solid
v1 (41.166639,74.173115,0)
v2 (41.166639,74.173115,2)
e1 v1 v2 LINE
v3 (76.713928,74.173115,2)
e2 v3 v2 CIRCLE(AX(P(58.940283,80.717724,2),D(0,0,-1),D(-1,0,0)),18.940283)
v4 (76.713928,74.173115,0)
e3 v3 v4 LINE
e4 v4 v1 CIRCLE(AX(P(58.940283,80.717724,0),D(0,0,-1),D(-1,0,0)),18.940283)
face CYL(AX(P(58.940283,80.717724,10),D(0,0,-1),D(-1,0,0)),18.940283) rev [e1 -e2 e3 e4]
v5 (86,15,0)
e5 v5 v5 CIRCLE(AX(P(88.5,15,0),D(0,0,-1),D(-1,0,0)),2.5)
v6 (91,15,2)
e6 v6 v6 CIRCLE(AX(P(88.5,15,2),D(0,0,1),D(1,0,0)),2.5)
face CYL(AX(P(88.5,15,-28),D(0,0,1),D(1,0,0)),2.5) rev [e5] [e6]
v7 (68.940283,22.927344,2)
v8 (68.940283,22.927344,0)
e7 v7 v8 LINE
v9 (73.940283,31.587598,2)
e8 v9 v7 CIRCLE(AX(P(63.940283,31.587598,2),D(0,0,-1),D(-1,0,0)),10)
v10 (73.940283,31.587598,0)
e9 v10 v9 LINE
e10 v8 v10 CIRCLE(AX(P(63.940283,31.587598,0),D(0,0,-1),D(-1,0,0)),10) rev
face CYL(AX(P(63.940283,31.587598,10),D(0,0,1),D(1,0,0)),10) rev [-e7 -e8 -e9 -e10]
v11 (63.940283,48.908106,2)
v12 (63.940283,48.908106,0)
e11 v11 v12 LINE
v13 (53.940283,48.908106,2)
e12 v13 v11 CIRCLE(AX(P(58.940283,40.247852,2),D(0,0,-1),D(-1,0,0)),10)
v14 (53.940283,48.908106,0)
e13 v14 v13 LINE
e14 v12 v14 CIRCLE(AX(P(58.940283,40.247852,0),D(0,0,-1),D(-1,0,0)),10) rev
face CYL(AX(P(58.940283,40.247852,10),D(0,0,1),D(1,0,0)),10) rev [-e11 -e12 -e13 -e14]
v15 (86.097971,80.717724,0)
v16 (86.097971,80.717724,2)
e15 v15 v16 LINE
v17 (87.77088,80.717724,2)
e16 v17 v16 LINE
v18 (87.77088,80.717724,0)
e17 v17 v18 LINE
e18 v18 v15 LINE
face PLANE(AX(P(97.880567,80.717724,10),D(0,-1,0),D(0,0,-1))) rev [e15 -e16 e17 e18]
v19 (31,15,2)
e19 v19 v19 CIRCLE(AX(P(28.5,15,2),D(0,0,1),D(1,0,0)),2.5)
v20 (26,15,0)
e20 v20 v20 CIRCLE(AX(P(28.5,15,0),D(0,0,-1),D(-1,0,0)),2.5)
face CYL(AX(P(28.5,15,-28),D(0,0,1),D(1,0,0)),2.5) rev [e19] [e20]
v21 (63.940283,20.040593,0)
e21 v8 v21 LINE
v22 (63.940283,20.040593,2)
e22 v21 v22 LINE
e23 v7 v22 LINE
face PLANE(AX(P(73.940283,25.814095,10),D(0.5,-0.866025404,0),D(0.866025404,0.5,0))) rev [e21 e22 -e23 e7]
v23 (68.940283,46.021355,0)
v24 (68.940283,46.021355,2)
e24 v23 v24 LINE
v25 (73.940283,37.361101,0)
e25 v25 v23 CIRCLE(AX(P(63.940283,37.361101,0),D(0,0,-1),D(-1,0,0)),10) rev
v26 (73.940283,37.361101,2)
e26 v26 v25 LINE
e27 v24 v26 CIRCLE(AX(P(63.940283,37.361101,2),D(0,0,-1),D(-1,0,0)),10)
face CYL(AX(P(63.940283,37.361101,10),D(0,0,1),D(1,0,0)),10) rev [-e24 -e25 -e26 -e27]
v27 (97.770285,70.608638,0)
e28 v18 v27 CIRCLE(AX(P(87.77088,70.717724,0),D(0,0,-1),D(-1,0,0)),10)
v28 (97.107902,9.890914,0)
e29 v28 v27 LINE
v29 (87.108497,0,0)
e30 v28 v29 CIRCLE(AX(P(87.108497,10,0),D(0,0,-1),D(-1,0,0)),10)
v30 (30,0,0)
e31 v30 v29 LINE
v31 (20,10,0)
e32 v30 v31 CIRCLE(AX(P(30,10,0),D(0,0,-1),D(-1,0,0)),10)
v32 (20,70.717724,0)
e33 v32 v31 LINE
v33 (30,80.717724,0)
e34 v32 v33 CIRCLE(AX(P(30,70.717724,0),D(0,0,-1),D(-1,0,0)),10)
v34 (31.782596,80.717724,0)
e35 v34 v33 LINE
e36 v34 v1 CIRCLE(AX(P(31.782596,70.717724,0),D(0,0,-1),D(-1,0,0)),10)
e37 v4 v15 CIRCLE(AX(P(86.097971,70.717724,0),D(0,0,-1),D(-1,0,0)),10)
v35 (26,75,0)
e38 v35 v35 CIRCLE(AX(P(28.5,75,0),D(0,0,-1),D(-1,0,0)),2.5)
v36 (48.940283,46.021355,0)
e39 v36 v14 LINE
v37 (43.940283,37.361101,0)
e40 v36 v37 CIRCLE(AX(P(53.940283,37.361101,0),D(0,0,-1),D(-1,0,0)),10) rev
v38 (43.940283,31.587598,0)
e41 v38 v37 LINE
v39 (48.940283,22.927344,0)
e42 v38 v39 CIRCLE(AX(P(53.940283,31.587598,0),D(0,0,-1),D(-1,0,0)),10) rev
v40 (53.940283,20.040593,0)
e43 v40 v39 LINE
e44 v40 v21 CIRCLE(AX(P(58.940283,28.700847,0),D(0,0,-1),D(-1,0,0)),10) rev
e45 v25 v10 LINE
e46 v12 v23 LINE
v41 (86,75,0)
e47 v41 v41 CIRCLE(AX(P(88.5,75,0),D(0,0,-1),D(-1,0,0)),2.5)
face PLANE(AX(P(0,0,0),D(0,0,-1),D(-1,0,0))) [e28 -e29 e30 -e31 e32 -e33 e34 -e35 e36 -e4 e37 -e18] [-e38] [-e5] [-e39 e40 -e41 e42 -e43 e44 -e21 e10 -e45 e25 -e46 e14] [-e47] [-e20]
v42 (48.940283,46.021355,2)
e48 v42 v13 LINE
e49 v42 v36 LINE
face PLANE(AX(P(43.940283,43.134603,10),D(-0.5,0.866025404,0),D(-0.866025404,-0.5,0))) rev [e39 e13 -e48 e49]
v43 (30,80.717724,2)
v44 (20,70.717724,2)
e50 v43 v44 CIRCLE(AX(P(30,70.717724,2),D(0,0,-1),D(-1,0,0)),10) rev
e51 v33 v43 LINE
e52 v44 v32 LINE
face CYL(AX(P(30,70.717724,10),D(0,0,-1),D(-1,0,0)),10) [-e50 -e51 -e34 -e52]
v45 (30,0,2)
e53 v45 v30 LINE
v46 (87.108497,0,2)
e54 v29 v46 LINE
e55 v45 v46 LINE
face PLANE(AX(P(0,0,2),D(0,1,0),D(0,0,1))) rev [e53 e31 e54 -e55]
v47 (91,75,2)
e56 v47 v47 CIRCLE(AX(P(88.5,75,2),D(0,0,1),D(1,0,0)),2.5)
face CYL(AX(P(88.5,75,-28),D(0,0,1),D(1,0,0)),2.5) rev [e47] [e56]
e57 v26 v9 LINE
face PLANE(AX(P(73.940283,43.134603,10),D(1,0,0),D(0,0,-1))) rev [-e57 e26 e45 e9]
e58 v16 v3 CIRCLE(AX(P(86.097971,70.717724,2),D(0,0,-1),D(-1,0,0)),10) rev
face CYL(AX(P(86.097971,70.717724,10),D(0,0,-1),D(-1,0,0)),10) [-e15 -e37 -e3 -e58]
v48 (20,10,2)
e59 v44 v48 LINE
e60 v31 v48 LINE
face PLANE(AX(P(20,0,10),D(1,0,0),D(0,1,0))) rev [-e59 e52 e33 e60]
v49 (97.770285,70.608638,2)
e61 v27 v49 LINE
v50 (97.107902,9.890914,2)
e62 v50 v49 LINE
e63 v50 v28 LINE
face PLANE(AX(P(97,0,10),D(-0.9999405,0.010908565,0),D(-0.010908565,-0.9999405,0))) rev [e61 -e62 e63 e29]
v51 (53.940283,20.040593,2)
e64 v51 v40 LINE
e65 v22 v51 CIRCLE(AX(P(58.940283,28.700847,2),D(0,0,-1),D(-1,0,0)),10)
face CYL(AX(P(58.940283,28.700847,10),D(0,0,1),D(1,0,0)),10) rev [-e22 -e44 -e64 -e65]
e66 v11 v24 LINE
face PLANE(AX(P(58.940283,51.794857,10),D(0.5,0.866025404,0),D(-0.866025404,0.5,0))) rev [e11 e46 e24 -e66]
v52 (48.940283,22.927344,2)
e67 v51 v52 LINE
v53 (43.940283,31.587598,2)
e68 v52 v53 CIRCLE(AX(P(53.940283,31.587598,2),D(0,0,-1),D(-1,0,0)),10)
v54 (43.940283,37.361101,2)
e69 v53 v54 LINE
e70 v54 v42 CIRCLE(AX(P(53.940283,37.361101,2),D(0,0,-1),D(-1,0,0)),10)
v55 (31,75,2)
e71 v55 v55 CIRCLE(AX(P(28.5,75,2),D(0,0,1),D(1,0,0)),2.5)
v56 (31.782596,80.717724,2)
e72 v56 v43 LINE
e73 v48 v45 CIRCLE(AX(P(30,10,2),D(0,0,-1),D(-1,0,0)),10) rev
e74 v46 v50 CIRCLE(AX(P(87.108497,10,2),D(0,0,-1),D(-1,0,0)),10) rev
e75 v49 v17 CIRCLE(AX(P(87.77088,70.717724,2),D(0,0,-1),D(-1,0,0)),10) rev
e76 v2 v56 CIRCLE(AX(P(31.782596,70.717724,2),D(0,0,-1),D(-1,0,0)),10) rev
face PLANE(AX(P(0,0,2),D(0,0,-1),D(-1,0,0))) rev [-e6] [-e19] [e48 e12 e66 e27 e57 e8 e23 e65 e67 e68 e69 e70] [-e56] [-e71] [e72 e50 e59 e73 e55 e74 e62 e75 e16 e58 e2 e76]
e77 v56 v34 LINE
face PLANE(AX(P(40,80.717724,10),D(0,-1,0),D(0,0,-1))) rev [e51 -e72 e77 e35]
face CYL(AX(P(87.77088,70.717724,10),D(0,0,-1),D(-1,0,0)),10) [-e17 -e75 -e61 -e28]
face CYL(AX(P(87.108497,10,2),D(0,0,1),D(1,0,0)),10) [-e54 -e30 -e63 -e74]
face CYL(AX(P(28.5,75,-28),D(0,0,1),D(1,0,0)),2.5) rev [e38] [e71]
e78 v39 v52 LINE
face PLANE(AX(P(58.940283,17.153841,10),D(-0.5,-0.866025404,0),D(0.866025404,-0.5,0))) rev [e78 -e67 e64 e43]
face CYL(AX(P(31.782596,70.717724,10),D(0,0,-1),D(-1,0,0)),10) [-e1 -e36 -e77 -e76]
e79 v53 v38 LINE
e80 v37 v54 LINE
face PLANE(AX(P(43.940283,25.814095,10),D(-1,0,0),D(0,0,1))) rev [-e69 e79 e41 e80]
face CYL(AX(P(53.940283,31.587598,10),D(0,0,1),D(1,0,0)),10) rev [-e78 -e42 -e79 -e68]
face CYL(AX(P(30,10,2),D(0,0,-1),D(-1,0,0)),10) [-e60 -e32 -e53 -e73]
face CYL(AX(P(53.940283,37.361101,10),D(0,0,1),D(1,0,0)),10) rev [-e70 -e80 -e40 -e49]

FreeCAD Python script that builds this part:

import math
import FreeCAD as App
import Part
import Sketcher
Q = App.Units.Quantity


def edges_at(feature, points):
    """Names of the edges that pass closest to the given points."""
    edges = feature.Shape.Edges
    near = lambda p: min(range(len(edges)), key=lambda i: edges[i].distToShape(Part.Vertex(*p))[0])
    return sorted({f"Edge{near(p) + 1}" for p in points})

doc = App.newDocument("Part")
body = doc.addObject("PartDesign::Body", "Body")

# Sketch on XY plane
sketch1 = doc.addObject("Sketcher::SketchObject", "Sketch")
body.addObject(sketch1)
sketch1.AttachmentSupport = (doc.XY_Plane, [""])
sketch1.MapMode = "FlatFace"
sketch1.addGeometry([
    Part.LineSegment(App.Vector(0, 200, 0), App.Vector(0, 0, 0)),
    Part.LineSegment(App.Vector(0, 0, 0), App.Vector(117, 0, 0)),
    Part.LineSegment(App.Vector(117, 0, 0), App.Vector(117, 200, 0)),
    Part.LineSegment(App.Vector(117, 200, 0), App.Vector(0, 200, 0)),
], False)
sketch1.addConstraint([
    Sketcher.Constraint("Coincident", 0, 2, 1, 1),
    Sketcher.Constraint("Coincident", 1, 2, 2, 1),
    Sketcher.Constraint("Coincident", 2, 2, 3, 1),
    Sketcher.Constraint("Coincident", 3, 2, 0, 1),
    Sketcher.Constraint("Vertical", 0),
    Sketcher.Constraint("Horizontal", 1),
    Sketcher.Constraint("Vertical", 2),
    Sketcher.Constraint("Horizontal", 3),
    Sketcher.Constraint("Coincident", 0, 2, -1, 1),
    Sketcher.Constraint("DistanceX", 1, 1, 1, 2, Q("117 mm")),
    Sketcher.Constraint("DistanceY", 0, 2, 0, 1, Q("200 mm")),
])
pad1 = doc.addObject("PartDesign::Pad", "Pad")
body.addObject(pad1)
pad1.Profile = sketch1
pad1.Length = 2

# Sketch on XY plane
sketch2 = doc.addObject("Sketcher::SketchObject", "Sketch001")
body.addObject(sketch2)
sketch2.AttachmentSupport = (doc.XY_Plane, [""])
sketch2.MapMode = "FlatFace"
sketch2.AttachmentOffset = App.Placement(App.Vector(0, 0, 2), App.Rotation())
sketch2.addGeometry([
    Part.LineSegment(App.Vector(0, 120, 0), App.Vector(40, 200, 0)),  # 0
    Part.LineSegment(App.Vector(40, 200, 0), App.Vector(0, 200, 0)),  # 1
    Part.LineSegment(App.Vector(0, 200, 0), App.Vector(0, 120, 0)),  # 2
    Part.LineSegment(App.Vector(77, 200, 0), App.Vector(117, 120, 0)),  # 3
    Part.LineSegment(App.Vector(117, 120, 0), App.Vector(117, 200, 0)),  # 4
    Part.LineSegment(App.Vector(117, 200, 0), App.Vector(77, 200, 0)),  # 5
], False)
sketch2.addConstraint([
    Sketcher.Constraint("Coincident", 0, 2, 1, 1),
    Sketcher.Constraint("Coincident", 1, 2, 2, 1),
    Sketcher.Constraint("Coincident", 2, 2, 0, 1),
    Sketcher.Constraint("Coincident", 3, 2, 4, 1),
    Sketcher.Constraint("Coincident", 4, 2, 5, 1),
    Sketcher.Constraint("Coincident", 5, 2, 3, 1),
    Sketcher.Constraint("Horizontal", 1),
    Sketcher.Constraint("Vertical", 2),
    Sketcher.Constraint("Vertical", 4),
    Sketcher.Constraint("Horizontal", 5),
    Sketcher.Constraint("PointOnObject", 1, 2, -2),
    Sketcher.Constraint("Horizontal", 2, 2, 3, 2),
    Sketcher.Constraint("Horizontal", 1, 2, 4, 2),
    Sketcher.Constraint("Equal", 1, 5),
    Sketcher.Constraint("DistanceX", 1, 2, 1, 1, Q("40 mm")),
    Sketcher.Constraint("DistanceY", 2, 2, 2, 1, Q("80 mm")),
    Sketcher.Constraint("DistanceY", -1, 1, 0, 2, Q("200 mm")),
    Sketcher.Constraint("DistanceX", -1, 1, 3, 2, Q("117 mm")),
])
pocket1 = doc.addObject("PartDesign::Pocket", "Pocket")
body.addObject(pocket1)
pocket1.Profile = sketch2
pocket1.Length = 2

# Sketch on XY plane
sketch3 = doc.addObject("Sketcher::SketchObject", "Sketch002")
body.addObject(sketch3)
sketch3.AttachmentSupport = (doc.XY_Plane, [""])
sketch3.MapMode = "FlatFace"
sketch3.AttachmentOffset = App.Placement(App.Vector(0, 0, 2), App.Rotation())
sketch3.addGeometry([
    Part.Circle(App.Vector(58.5, 170, 0), App.Vector(0, 0, 1), 2.5),  # 0
    Part.Circle(App.Vector(58.5, 150, 0), App.Vector(0, 0, 1), 2.5),  # 1
    Part.Circle(App.Vector(28.5, 15, 0), App.Vector(0, 0, 1), 2.5),  # 2
    Part.Circle(App.Vector(88.5, 15, 0), App.Vector(0, 0, 1), 2.5),  # 3
    Part.Circle(App.Vector(28.5, 75, 0), App.Vector(0, 0, 1), 2.5),  # 4
    Part.Circle(App.Vector(88.5, 75, 0), App.Vector(0, 0, 1), 2.5),  # 5
    Part.Circle(App.Vector(43, 112.5, 0), App.Vector(0, 0, 1), 1.5),  # 6
    Part.Circle(App.Vector(43, 81.5, 0), App.Vector(0, 0, 1), 1.5),  # 7
    Part.Circle(App.Vector(74, 81.5, 0), App.Vector(0, 0, 1), 1.5),  # 8
    Part.Circle(App.Vector(74, 112.5, 0), App.Vector(0, 0, 1), 1.5),  # 9
    Part.Circle(App.Vector(58.5, 97, 0), App.Vector(0, 0, 1), 12.5),  # 10
], False)
sketch3.addConstraint([
    Sketcher.Constraint("Equal", 0, 1),
    Sketcher.Constraint("Equal", 1, 2),
    Sketcher.Constraint("Equal", 2, 3),
    Sketcher.Constraint("Equal", 3, 4),
    Sketcher.Constraint("Equal", 4, 5),
    Sketcher.Constraint("Equal", 6, 7),
    Sketcher.Constraint("Equal", 7, 8),
    Sketcher.Constraint("Equal", 8, 9),
    Sketcher.Constraint("Horizontal", 2, 3, 3, 3),
    Sketcher.Constraint("Horizontal", 4, 3, 5, 3),
    Sketcher.Constraint("Horizontal", 7, 3, 8, 3),
    Sketcher.Constraint("Horizontal", 6, 3, 9, 3),
    Sketcher.Constraint("Vertical", 0, 3, 1, 3),
    Sketcher.Constraint("Vertical", 2, 3, 4, 3),
    Sketcher.Constraint("Vertical", 3, 3, 5, 3),
    Sketcher.Constraint("Vertical", 6, 3, 7, 3),
    Sketcher.Constraint("Vertical", 8, 3, 9, 3),
    Sketcher.Constraint("Vertical", 1, 3, 10, 3),
    Sketcher.Constraint("Diameter", 0, Q("5 mm")),
    Sketcher.Constraint("Diameter", 6, Q("3 mm")),
    Sketcher.Constraint("Diameter", 10, Q("25 mm")),
    Sketcher.Constraint("DistanceY", -1, 1, 0, 3, Q("170 mm")),
    Sketcher.Constraint("DistanceY", -1, 1, 1, 3, Q("150 mm")),
    Sketcher.Constraint("DistanceY", -1, 1, 2, 3, Q("15 mm")),
    Sketcher.Constraint("DistanceY", -1, 1, 4, 3, Q("75 mm")),
    Sketcher.Constraint("DistanceX", -1, 1, 6, 3, Q("43 mm")),
    Sketcher.Constraint("DistanceX", -1, 1, 8, 3, Q("74 mm")),
    Sketcher.Constraint("DistanceY", -1, 1, 10, 3, Q("97 mm")),
    Sketcher.Constraint("DistanceX", 2, 3, 1, 3, Q("30 mm")),
    Sketcher.Constraint("DistanceX", 2, 3, 3, 3, Q("60 mm")),
    Sketcher.Constraint("DistanceY", 7, 3, 6, 3, Q("31 mm")),
    Sketcher.Constraint("DistanceX", -1, 1, 0, 3, Q("58.5 mm")),
    Sketcher.Constraint("DistanceY", -1, 1, 6, 3, Q("112.5 mm")),
])
pocket2 = doc.addObject("PartDesign::Pocket", "Pocket001")
body.addObject(pocket2)
pocket2.Profile = sketch3
pocket2.Length = 30
doc.recompute()

fillet = doc.addObject("PartDesign::Fillet", "Fillet")
body.addObject(fillet)
fillet.Base = (pocket2, edges_at(pocket2, [
    (0, 120, 1),
    (40, 200, 1),
    (117, 120, 1),
    (77, 200, 1),
    (117, 0, 1),
    (0, 0, 1),
]))
fillet.Radius = 20

# Sketch on XY plane
sketch4 = doc.addObject("Sketcher::SketchObject", "Sketch003")
body.addObject(sketch4)
sketch4.AttachmentSupport = (doc.XY_Plane, [""])
sketch4.MapMode = "FlatFace"
sketch4.addGeometry([
    Part.LineSegment(App.Vector(97, 0, 0), App.Vector(98.7, 156.6, 0)),  # 0
    Part.LineSegment(App.Vector(98.7, 156.6, 0), App.Vector(114.9, 124.2, 0)),  # 1
    Part.ArcOfCircle(Part.Circle(App.Vector(97, 115.3, 0), App.Vector(0, 0, 1), 20), math.radians(0), math.radians(27)),  # 2
    Part.LineSegment(App.Vector(117, 115.3, 0), App.Vector(117, 20, 0)),  # 3
    Part.ArcOfCircle(Part.Circle(App.Vector(97, 20, 0), App.Vector(0, 0, 1), 20), math.radians(-90), math.radians(0)),  # 4
    Part.LineSegment(App.Vector(20, 160, 0), App.Vector(20, 0, 0)),  # 5
    Part.ArcOfCircle(Part.Circle(App.Vector(20, 20, 0), App.Vector(0, 0, 1), 20), math.radians(180), math.radians(270)),  # 6
    Part.LineSegment(App.Vector(0, 20, 0), App.Vector(0, 115.3, 0)),  # 7
    Part.ArcOfCircle(Part.Circle(App.Vector(20, 115.3, 0), App.Vector(0, 0, 1), 20), math.radians(153), math.radians(180)),  # 8
    Part.LineSegment(App.Vector(2.1, 124.2, 0), App.Vector(18.3, 156.6, 0)),  # 9
    Part.LineSegment(App.Vector(18.3, 156.6, 0), App.Vector(20, 160, 0)),  # 10
], False)
sketch4.addConstraint([
    Sketcher.Constraint("Coincident", 0, 2, 1, 1),
    Sketcher.Constraint("Tangent", 1, 2, 2, 2),
    Sketcher.Constraint("Tangent", 2, 1, 3, 1),
    Sketcher.Constraint("Tangent", 3, 2, 4, 2),
    Sketcher.Constraint("Coincident", 4, 1, 0, 1),
    Sketcher.Constraint("Coincident", 5, 2, 6, 2),
    Sketcher.Constraint("Tangent", 6, 1, 7, 1),
    Sketcher.Constraint("Tangent", 7, 2, 8, 2),
    Sketcher.Constraint("Tangent", 8, 1, 9, 1),
    Sketcher.Constraint("Coincident", 9, 2, 10, 1),
    Sketcher.Constraint("Coincident", 10, 2, 5, 1),
    Sketcher.Constraint("Vertical", 3),
    Sketcher.Constraint("Vertical", 5),
    Sketcher.Constraint("Vertical", 7),
    Sketcher.Constraint("Equal", 2, 4),
    Sketcher.Constraint("Equal", 4, 6),
    Sketcher.Constraint("Equal", 6, 8),
    Sketcher.Constraint("PointOnObject", 4, 1, -1),
    Sketcher.Constraint("PointOnObject", 5, 2, -1),
    Sketcher.Constraint("PointOnObject", 6, 1, -2),
    Sketcher.Constraint("Parallel", 9, 10),
    Sketcher.Constraint("Horizontal", 2, 3, 8, 3),
    Sketcher.Constraint("Horizontal", 1, 2, 8, 1),
    Sketcher.Constraint("Horizontal", 0, 2, 9, 2),
    Sketcher.Constraint("Vertical", 2, 3, 4, 1),
    Sketcher.Constraint("Vertical", 8, 3, 5, 2),
    Sketcher.Constraint("Radius", 2, Q("20 mm")),
    Sketcher.Constraint("DistanceY", 5, 2, 5, 1, Q("160 mm")),
    Sketcher.Constraint("DistanceX", -1, 1, 2, 3, Q("97 mm")),
    Sketcher.Constraint("DistanceY", 3, 2, 3, 1, Q("95.27864 mm")),
    Sketcher.Constraint("Distance", 0, Q("156.592909 mm")),
])
pocket3 = doc.addObject("PartDesign::Pocket", "Pocket002")
body.addObject(pocket3)
pocket3.Profile = sketch4
pocket3.Length = 10
pocket3.Reversed = True
doc.recompute()

fillet2 = doc.addObject("PartDesign::Fillet", "Fillet001")
body.addObject(fillet2)
fillet2.Base = (pocket3, edges_at(pocket3, [
    (97, 0, 1),
    (20, 0, 1),
    (98.708, 156.584, 1),
    (20, 160, 1),
]))
fillet2.Radius = 10

# Sketch on XY plane
sketch5 = doc.addObject("Sketcher::SketchObject", "Sketch004")
body.addObject(sketch5)
sketch5.AttachmentSupport = (doc.XY_Plane, [""])
sketch5.MapMode = "FlatFace"
sketch5.addGeometry([
    Part.LineSegment(App.Vector(97.9, 80.7, 0), App.Vector(77.9, 80.7, 0)),  # 0
    Part.ArcOfCircle(Part.Circle(App.Vector(58.9, 80.7, 0), App.Vector(0, 0, 1), 18.9), math.radians(180), math.radians(360)),  # 1
    Part.LineSegment(App.Vector(40, 80.7, 0), App.Vector(20, 80.7, 0)),  # 2
    Part.LineSegment(App.Vector(20, 80.7, 0), App.Vector(20, 157.6, 0)),  # 3
    Part.ArcOfCircle(Part.Circle(App.Vector(30, 157.6, 0), App.Vector(0, 0, 1), 10), math.radians(153), math.radians(180)),  # 4
    Part.LineSegment(App.Vector(21.1, 162.1, 0), App.Vector(34.5, 188.9, 0)),  # 5
    Part.ArcOfCircle(Part.Circle(App.Vector(52.4, 180, 0), App.Vector(0, 0, 1), 20), math.radians(90), math.radians(153)),  # 6
    Part.LineSegment(App.Vector(52.4, 200, 0), App.Vector(64.6, 200, 0)),  # 7
    Part.ArcOfCircle(Part.Circle(App.Vector(64.6, 180, 0), App.Vector(0, 0, 1), 20), math.radians(27), math.radians(90)),  # 8
    Part.LineSegment(App.Vector(82.5, 188.9, 0), App.Vector(97.6, 158.7, 0)),  # 9
    Part.ArcOfCircle(Part.Circle(App.Vector(88.7, 154.3, 0), App.Vector(0, 0, 1), 10), math.radians(-1), math.radians(27)),  # 10
    Part.LineSegment(App.Vector(98.7, 154.2, 0), App.Vector(97.9, 82, 0)),  # 11
    Part.LineSegment(App.Vector(97.9, 82, 0), App.Vector(97.9, 80.7, 0)),  # 12
], False)
sketch5.addConstraint([
    Sketcher.Constraint("Coincident", 0, 2, 1, 2),
    Sketcher.Constraint("Coincident", 1, 1, 2, 1),
    Sketcher.Constraint("Coincident", 2, 2, 3, 1),
    Sketcher.Constraint("Tangent", 3, 2, 4, 2),
    Sketcher.Constraint("Tangent", 4, 1, 5, 1),
    Sketcher.Constraint("Tangent", 5, 2, 6, 2),
    Sketcher.Constraint("Tangent", 6, 1, 7, 1),
    Sketcher.Constraint("Tangent", 7, 2, 8, 2),
    Sketcher.Constraint("Tangent", 8, 1, 9, 1),
    Sketcher.Constraint("Tangent", 9, 2, 10, 2),
    Sketcher.Constraint("Tangent", 10, 1, 11, 1),
    Sketcher.Constraint("Coincident", 11, 2, 12, 1),
    Sketcher.Constraint("Coincident", 12, 2, 0, 1),
    Sketcher.Constraint("Horizontal", 0),
    Sketcher.Constraint("Horizontal", 2),
    Sketcher.Constraint("Vertical", 3),
    Sketcher.Constraint("Horizontal", 7),
    Sketcher.Constraint("Equal", 6, 8),
    Sketcher.Constraint("Equal", 4, 10),
    Sketcher.Constraint("Parallel", 11, 12),
    Sketcher.Constraint("Horizontal", 1, 3, 0, 2),
    Sketcher.Constraint("Horizontal", 0, 2, 1, 1),
    Sketcher.Constraint("Horizontal", 5, 2, 8, 1),
    Sketcher.Constraint("Equal", 0, 2),
    Sketcher.Constraint("Radius", 4, Q("10 mm")),
    Sketcher.Constraint("Radius", 6, Q("20 mm")),
    Sketcher.Constraint("DistanceX", 0, 2, 0, 1, Q("20 mm")),
    Sketcher.Constraint("Distance", 5, Q("30 mm")),
    Sketcher.Constraint("DistanceX", -1, 1, 4, 3, Q("30 mm")),
    Sketcher.Constraint("DistanceY", -1, 1, 6, 3, Q("180 mm")),
    Sketcher.Constraint("Distance", 9, Q("33.762002 mm")),
    Sketcher.Constraint("Radius", 1, Q("18.940283 mm")),
    Sketcher.Constraint("DistanceX", 7, 1, 7, 2, Q("12.27864 mm")),
    Sketcher.Constraint("DistanceX", 8, 3, 10, 3, Q("24.043098 mm")),
    Sketcher.Constraint("Distance", 12, Q("1.31051 mm")),
    Sketcher.Constraint("DistanceY", 3, 1, 3, 2, Q("76.921596 mm")),
])
pocket4 = doc.addObject("PartDesign::Pocket", "Pocket003")
body.addObject(pocket4)
pocket4.Profile = sketch5
pocket4.Length = 10
pocket4.Reversed = True
doc.recompute()

fillet3 = doc.addObject("PartDesign::Fillet", "Fillet002")
body.addObject(fillet3)
fillet3.Base = (pocket4, edges_at(pocket4, [
    (40, 80.718, 1),
    (77.881, 80.718, 1),
    (20, 80.718, 1),
    (97.881, 80.718, 1),
]))
fillet3.Radius = 10

# Sketch on XY plane
sketch6 = doc.addObject("Sketcher::SketchObject", "Sketch005")
body.addObject(sketch6)
sketch6.AttachmentSupport = (doc.XY_Plane, [""])
sketch6.MapMode = "FlatFace"
sketch6.addGeometry([
    Part.LineSegment(App.Vector(59, 52, 0), App.Vector(74, 43, 0)),  # 0
    Part.LineSegment(App.Vector(74, 43, 0), App.Vector(74, 26, 0)),  # 1
    Part.LineSegment(App.Vector(74, 26, 0), App.Vector(59, 17, 0)),  # 2
    Part.LineSegment(App.Vector(59, 17, 0), App.Vector(44, 26, 0)),  # 3
    Part.LineSegment(App.Vector(44, 26, 0), App.Vector(44, 43, 0)),  # 4
    Part.LineSegment(App.Vector(44, 43, 0), App.Vector(59, 52, 0)),  # 5
], False)
sketch6.addConstraint([
    Sketcher.Constraint("Coincident", 0, 2, 1, 1),
    Sketcher.Constraint("Coincident", 1, 2, 2, 1),
    Sketcher.Constraint("Coincident", 2, 2, 3, 1),
    Sketcher.Constraint("Coincident", 3, 2, 4, 1),
    Sketcher.Constraint("Coincident", 4, 2, 5, 1),
    Sketcher.Constraint("Coincident", 5, 2, 0, 1),
    Sketcher.Constraint("Vertical", 1),
    Sketcher.Constraint("Vertical", 4),
    Sketcher.Constraint("Parallel", 0, 3),
    Sketcher.Constraint("Parallel", 2, 5),
    Sketcher.Constraint("Horizontal", 1, 2, 3, 2),
    Sketcher.Constraint("Horizontal", 0, 2, 4, 2),
    Sketcher.Constraint("Vertical", 2, 2, 5, 2),
    Sketcher.Constraint("Angle", 0, Q("-30 deg")),
    Sketcher.Constraint("DistanceX", 2, 2, 1, 2, Q("15 mm")),
    Sketcher.Constraint("DistanceY", 1, 2, 1, 1, Q("17.320508 mm")),
    Sketcher.Constraint("DistanceY", -1, 1, 2, 2, Q("17.153841 mm")),
    Sketcher.Constraint("DistanceX", -1, 1, 0, 2, Q("73.940283 mm")),
])
pocket5 = doc.addObject("PartDesign::Pocket", "Pocket004")
body.addObject(pocket5)
pocket5.Profile = sketch6
pocket5.Length = 10
pocket5.Reversed = True
doc.recompute()

fillet4 = doc.addObject("PartDesign::Fillet", "Fillet003")
body.addObject(fillet4)
fillet4.Base = (pocket5, edges_at(pocket5, [
    (58.94, 51.795, 1),
    (43.94, 43.135, 1),
    (43.94, 25.814, 1),
    (58.94, 17.154, 1),
    (73.94, 25.814, 1),
    (73.94, 43.135, 1),
]))
fillet4.Radius = 10

doc.recompute()
